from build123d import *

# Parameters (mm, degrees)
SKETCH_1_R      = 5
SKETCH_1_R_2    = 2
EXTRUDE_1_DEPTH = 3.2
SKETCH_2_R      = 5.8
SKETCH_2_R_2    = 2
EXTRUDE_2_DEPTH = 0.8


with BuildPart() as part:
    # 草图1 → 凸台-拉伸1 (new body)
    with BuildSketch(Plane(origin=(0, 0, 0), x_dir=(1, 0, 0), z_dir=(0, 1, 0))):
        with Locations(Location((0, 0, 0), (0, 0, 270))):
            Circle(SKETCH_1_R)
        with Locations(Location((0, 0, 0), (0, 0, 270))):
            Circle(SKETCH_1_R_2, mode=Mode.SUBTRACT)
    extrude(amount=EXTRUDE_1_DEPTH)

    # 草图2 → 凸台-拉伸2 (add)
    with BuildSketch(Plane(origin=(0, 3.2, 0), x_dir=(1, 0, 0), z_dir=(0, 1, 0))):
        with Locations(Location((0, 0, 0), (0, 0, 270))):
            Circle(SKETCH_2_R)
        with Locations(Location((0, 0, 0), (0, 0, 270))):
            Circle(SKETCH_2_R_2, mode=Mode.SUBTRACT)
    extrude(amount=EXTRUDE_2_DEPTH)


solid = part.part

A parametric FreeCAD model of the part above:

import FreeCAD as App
import Part
import Sketcher
Q = App.Units.Quantity

doc = App.newDocument("Part")
params = doc.addObject("Spreadsheet::Sheet", "Params")
for row, (alias, value) in enumerate([
    ("sketch1_diameter", "10 mm"),
    ("sketch1_diameter2", "4 mm"),
    ("pad1_length", "3.2 mm"),
    ("sketch2_diameter", "4 mm"),
    ("sketch2_diameter2", "11.6 mm"),
    ("pad2_length", "0.8 mm"),
], start=1):
    params.set(f"A{row}", alias)
    params.set(f"B{row}", "=" + value)
    params.setAlias(f"B{row}", alias)

body = doc.addObject("PartDesign::Body", "Body")

# Sketch on XZ plane
sketch1 = body.newObject("Sketcher::SketchObject", "Sketch")
sketch1.AttachmentSupport = (doc.getObject("XZ_Plane"), [""])
sketch1.MapMode = "FlatFace"
sketch1.addGeometry(Part.Circle(App.Vector(0, 0, 0), App.Vector(0, 0, 1), 5), False)
sketch1.addGeometry(Part.Circle(App.Vector(0, 0, 0), App.Vector(0, 0, 1), 2), False)
sketch1.addConstraint(Sketcher.Constraint("Coincident", 0, 3, -1, 1))
sketch1.addConstraint(Sketcher.Constraint("Coincident", 1, 3, -1, 1))
sketch1.addConstraint(Sketcher.Constraint("Diameter", 0, Q("10 mm")))
sketch1.addConstraint(Sketcher.Constraint("Diameter", 1, Q("4 mm")))
sketch1.setExpression("Constraints[2]", "Params.sketch1_diameter")
sketch1.setExpression("Constraints[3]", "Params.sketch1_diameter2")
pad1 = body.newObject("PartDesign::Pad", "Pad")
pad1.Profile = sketch1
pad1.setExpression("Length", "Params.pad1_length")
pad1.Reversed = True

# Sketch on XZ plane
sketch2 = body.newObject("Sketcher::SketchObject", "Sketch001")
sketch2.AttachmentSupport = (doc.getObject("XZ_Plane"), [""])
sketch2.MapMode = "FlatFace"
sketch2.AttachmentOffset = App.Placement(App.Vector(0, 0, -3.2), App.Rotation())
sketch2.addGeometry(Part.Circle(App.Vector(0, 0, 0), App.Vector(0, 0, 1), 5.8), False)
sketch2.addGeometry(Part.Circle(App.Vector(0, 0, 0), App.Vector(0, 0, 1), 2), False)
sketch2.addConstraint(Sketcher.Constraint("Coincident", 0, 3, -1, 1))
sketch2.addConstraint(Sketcher.Constraint("Coincident", 1, 3, -1, 1))
sketch2.addConstraint(Sketcher.Constraint("Diameter", 1, Q("4 mm")))
sketch2.addConstraint(Sketcher.Constraint("Diameter", 0, Q("11.6 mm")))
sketch2.setExpression("Constraints[2]", "Params.sketch2_diameter")
sketch2.setExpression("Constraints[3]", "Params.sketch2_diameter2")
pad2 = body.newObject("PartDesign::Pad", "Pad001")
pad2.Profile = sketch2
pad2.setExpression("Length", "Params.pad2_length")
pad2.Reversed = True

doc.recompute()
